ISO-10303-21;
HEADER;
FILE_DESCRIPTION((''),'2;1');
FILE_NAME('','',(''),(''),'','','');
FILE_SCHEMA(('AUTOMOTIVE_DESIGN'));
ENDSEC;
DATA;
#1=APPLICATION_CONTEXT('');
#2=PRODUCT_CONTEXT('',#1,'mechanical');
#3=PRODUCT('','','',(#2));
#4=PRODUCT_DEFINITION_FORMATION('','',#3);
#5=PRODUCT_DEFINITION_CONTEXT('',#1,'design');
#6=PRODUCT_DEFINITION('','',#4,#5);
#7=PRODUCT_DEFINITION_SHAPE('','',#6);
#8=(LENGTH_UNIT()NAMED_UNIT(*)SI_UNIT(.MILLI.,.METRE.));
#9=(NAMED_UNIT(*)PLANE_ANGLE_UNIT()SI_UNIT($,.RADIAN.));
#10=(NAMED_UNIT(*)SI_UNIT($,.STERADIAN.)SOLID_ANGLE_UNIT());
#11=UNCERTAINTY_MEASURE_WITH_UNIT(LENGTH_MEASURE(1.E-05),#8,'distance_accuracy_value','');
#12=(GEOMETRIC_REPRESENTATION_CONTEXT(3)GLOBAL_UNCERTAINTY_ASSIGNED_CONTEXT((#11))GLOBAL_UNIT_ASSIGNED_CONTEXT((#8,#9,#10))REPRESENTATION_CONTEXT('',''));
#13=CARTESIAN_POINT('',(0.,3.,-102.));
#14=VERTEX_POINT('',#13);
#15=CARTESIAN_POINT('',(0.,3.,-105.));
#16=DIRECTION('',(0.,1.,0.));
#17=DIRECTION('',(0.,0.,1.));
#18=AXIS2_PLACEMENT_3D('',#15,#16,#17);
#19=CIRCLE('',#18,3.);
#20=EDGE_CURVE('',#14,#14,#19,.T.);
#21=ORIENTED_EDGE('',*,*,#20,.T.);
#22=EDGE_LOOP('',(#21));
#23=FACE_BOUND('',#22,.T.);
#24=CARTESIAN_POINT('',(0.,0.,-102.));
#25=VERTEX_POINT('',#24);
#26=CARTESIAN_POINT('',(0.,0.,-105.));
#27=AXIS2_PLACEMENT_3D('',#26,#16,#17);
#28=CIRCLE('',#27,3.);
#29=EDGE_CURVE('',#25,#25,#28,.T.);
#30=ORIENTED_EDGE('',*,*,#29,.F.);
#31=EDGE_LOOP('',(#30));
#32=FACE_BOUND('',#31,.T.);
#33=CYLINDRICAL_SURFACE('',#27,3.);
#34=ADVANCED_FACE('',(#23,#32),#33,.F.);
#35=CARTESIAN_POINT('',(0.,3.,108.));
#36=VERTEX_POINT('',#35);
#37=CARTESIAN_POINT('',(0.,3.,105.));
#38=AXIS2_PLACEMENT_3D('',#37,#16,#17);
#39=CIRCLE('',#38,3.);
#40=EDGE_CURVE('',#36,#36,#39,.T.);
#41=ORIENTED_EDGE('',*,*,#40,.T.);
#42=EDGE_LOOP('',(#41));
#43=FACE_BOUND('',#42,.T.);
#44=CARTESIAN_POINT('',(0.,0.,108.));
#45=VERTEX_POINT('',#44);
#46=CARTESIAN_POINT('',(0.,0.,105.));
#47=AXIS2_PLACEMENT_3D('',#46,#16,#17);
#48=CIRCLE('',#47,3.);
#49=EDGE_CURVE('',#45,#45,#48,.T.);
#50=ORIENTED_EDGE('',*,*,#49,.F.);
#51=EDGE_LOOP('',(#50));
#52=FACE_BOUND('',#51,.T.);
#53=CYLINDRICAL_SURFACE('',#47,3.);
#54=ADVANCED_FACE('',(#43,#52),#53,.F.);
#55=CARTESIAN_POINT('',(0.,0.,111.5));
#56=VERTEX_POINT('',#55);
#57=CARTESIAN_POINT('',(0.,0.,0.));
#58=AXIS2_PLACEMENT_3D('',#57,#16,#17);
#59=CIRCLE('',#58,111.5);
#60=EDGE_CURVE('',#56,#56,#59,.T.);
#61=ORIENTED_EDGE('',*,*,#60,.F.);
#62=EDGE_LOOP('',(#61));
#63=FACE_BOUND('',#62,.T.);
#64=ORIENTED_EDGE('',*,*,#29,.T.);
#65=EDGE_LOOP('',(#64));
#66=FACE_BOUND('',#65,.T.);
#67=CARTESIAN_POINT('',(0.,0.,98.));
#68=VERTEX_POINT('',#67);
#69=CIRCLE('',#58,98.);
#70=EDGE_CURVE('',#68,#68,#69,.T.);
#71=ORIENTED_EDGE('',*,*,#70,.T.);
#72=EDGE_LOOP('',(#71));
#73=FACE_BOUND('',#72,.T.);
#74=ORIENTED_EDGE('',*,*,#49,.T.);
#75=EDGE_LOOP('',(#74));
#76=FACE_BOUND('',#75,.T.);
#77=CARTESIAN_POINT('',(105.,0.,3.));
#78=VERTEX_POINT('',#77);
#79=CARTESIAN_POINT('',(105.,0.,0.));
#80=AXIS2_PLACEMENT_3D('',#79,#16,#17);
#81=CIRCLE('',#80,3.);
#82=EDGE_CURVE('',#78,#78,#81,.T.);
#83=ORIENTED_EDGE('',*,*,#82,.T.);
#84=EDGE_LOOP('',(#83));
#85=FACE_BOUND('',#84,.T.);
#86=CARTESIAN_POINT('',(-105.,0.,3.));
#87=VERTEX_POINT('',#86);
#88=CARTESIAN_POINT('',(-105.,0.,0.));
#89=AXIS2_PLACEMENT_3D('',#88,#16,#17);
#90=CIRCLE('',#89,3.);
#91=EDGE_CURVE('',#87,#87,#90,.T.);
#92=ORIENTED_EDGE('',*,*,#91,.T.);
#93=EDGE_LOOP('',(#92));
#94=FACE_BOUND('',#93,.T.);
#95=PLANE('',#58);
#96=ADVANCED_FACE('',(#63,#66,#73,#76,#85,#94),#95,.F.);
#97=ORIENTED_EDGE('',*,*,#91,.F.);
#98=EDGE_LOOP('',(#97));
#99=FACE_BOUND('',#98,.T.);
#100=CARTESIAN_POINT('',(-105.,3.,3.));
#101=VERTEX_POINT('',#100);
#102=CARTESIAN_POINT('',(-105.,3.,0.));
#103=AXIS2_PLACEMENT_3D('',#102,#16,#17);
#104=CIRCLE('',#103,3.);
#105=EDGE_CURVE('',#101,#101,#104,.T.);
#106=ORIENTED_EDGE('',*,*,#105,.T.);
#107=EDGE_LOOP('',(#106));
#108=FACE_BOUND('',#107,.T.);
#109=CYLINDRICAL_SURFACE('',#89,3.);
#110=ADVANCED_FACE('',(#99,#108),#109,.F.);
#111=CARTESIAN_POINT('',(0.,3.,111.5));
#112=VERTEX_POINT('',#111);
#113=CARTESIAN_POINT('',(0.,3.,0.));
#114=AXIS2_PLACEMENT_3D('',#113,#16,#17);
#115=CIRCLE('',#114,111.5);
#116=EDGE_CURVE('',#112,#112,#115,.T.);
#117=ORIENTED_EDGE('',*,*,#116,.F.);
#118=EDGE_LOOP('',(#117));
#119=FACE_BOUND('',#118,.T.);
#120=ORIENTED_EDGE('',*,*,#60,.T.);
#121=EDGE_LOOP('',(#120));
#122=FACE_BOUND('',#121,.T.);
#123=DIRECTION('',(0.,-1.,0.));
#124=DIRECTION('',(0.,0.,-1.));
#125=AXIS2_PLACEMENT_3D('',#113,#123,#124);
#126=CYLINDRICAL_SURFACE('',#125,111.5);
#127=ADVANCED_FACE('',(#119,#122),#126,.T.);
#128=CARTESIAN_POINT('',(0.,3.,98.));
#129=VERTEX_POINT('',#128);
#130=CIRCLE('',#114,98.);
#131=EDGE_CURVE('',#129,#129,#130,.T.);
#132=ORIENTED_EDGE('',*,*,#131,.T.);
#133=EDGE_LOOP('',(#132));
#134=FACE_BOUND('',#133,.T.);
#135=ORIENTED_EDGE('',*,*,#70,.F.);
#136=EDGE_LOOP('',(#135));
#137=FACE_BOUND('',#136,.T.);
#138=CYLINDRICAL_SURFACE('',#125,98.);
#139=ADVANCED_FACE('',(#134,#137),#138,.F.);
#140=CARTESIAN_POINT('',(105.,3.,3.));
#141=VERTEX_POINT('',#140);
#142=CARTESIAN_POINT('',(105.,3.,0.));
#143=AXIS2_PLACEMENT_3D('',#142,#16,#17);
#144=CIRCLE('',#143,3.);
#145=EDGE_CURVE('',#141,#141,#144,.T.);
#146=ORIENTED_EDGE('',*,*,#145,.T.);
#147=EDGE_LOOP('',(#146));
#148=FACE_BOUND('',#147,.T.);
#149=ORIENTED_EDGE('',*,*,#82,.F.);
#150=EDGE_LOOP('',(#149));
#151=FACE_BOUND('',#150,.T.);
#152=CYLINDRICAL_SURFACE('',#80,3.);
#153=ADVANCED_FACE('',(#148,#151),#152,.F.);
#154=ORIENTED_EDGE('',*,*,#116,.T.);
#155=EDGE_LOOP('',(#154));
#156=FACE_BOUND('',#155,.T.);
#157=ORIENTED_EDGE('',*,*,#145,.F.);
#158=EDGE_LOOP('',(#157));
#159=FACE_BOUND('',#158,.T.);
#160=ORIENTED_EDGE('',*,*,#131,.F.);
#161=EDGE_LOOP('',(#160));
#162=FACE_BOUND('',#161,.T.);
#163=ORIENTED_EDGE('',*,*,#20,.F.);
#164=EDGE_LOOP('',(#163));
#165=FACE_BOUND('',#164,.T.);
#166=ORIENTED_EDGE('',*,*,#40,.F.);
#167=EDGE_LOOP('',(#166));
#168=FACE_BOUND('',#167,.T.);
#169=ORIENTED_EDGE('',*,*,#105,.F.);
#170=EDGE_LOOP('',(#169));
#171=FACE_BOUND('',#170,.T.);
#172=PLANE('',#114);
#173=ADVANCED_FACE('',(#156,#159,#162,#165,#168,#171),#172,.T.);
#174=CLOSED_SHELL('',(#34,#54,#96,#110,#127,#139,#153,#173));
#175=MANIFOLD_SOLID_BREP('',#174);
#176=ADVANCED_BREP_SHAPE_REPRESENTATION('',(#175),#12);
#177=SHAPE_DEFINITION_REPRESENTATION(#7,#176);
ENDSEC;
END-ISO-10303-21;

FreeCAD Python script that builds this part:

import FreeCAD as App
import Part
import Sketcher

doc = App.newDocument("Part")
body = doc.addObject("PartDesign::Body", "Body")

# Sketch on XZ plane
sketch1 = doc.addObject("Sketcher::SketchObject", "Sketch")
body.addObject(sketch1)
sketch1.AttachmentSupport = (doc.XZ_Plane, [""])
sketch1.MapMode = "FlatFace"
sketch1.addGeometry([
    Part.Circle(App.Vector(0, 0, 0), App.Vector(0, 0, 1), 112),
    Part.Circle(App.Vector(0, 0, 0), App.Vector(0, 0, 1), 98),
], False)
sketch1.addConstraint([
    Sketcher.Constraint("Coincident", 0, 3, -1, 1),
    Sketcher.Constraint("Coincident", 1, 3, -1, 1),
    Sketcher.Constraint("Diameter", 0, 223.0),
    Sketcher.Constraint("Diameter", 1, 196.0),
])
pad1 = doc.addObject("PartDesign::Pad", "Pad")
body.addObject(pad1)
pad1.Profile = sketch1
pad1.Length = 3
pad1.Reversed = True

# Sketch on XZ plane
sketch2 = doc.addObject("Sketcher::SketchObject", "Sketch001")
body.addObject(sketch2)
sketch2.AttachmentSupport = (doc.XZ_Plane, [""])
sketch2.MapMode = "FlatFace"
sketch2.AttachmentOffset = App.Placement(App.Vector(0, 0, -3), App.Rotation())
sketch2.addGeometry([
    Part.Circle(App.Vector(0, -105, 0), App.Vector(0, 0, 1), 3),
    Part.Circle(App.Vector(105, 0, 0), App.Vector(0, 0, 1), 3),
    Part.Circle(App.Vector(0, 105, 0), App.Vector(0, 0, 1), 3),
    Part.Circle(App.Vector(-105, 0, 0), App.Vector(0, 0, 1), 3),
], False)
sketch2.addConstraint([
    Sketcher.Constraint("Equal", 0, 1),
    Sketcher.Constraint("Equal", 1, 2),
    Sketcher.Constraint("Equal", 2, 3),
    Sketcher.Constraint("Symmetric", 0, 3, 2, 3, -1, 1),
    Sketcher.Constraint("Symmetric", 1, 3, 3, 3, -1, 1),
    Sketcher.Constraint("PointOnObject", 0, 3, -2),
    Sketcher.Constraint("PointOnObject", 1, 3, -1),
    Sketcher.Constraint("Diameter", 0, 6.0),
    Sketcher.Constraint("DistanceY", 0, 3, -1, 1, 105.0),
    Sketcher.Constraint("DistanceX", -1, 1, 1, 3, 105.0),
])
pocket1 = doc.addObject("PartDesign::Pocket", "Pocket")
body.addObject(pocket1)
pocket1.Profile = sketch2
pocket1.Type = "ThroughAll"
pocket1.Reversed = True

doc.recompute()
